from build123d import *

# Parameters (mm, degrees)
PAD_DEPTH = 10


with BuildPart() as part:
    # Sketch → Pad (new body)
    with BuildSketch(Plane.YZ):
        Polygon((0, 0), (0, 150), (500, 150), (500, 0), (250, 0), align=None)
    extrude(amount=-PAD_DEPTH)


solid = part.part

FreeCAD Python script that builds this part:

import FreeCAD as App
import Part
import Sketcher
from FreeCAD import Vector

doc = App.newDocument("Part")
body = doc.addObject("PartDesign::Body", "Body")

sketch1 = body.newObject("Sketcher::SketchObject", "Sketch")
sketch1.AttachmentSupport = (doc.getObject("YZ_Plane"), [""])
sketch1.MapMode = "FlatFace"
sketch1.addGeometry(Part.LineSegment(Vector(0, 150, 0), Vector(0, 0, 0)), False)
sketch1.addGeometry(Part.LineSegment(Vector(0, 0, 0), Vector(500, 0, 0)), False)
sketch1.addGeometry(Part.LineSegment(Vector(500, 0, 0), Vector(500, 150, 0)), False)
sketch1.addGeometry(Part.LineSegment(Vector(500, 150, 0), Vector(0, 150, 0)), False)
sketch1.addConstraint(Sketcher.Constraint("Coincident", 0, 2, 1, 1))
sketch1.addConstraint(Sketcher.Constraint("Coincident", 1, 2, 2, 1))
sketch1.addConstraint(Sketcher.Constraint("Coincident", 2, 2, 3, 1))
sketch1.addConstraint(Sketcher.Constraint("Coincident", 3, 2, 0, 1))
sketch1.addConstraint(Sketcher.Constraint("Vertical", 0))
sketch1.addConstraint(Sketcher.Constraint("Horizontal", 1))
sketch1.addConstraint(Sketcher.Constraint("Vertical", 2))
sketch1.addConstraint(Sketcher.Constraint("Horizontal", 3))
sketch1.addConstraint(Sketcher.Constraint("Coincident", 0, 2, -1, 1))
sketch1.addConstraint(Sketcher.Constraint("DistanceX", 1, 1, 1, 2, 500.0))
sketch1.addConstraint(Sketcher.Constraint("DistanceY", 0, 2, 0, 1, 150.0))
pad1 = body.newObject("PartDesign::Pad", "Pad")
pad1.Profile = sketch1
pad1.Length = 10
pad1.Reversed = True

doc.recompute()
